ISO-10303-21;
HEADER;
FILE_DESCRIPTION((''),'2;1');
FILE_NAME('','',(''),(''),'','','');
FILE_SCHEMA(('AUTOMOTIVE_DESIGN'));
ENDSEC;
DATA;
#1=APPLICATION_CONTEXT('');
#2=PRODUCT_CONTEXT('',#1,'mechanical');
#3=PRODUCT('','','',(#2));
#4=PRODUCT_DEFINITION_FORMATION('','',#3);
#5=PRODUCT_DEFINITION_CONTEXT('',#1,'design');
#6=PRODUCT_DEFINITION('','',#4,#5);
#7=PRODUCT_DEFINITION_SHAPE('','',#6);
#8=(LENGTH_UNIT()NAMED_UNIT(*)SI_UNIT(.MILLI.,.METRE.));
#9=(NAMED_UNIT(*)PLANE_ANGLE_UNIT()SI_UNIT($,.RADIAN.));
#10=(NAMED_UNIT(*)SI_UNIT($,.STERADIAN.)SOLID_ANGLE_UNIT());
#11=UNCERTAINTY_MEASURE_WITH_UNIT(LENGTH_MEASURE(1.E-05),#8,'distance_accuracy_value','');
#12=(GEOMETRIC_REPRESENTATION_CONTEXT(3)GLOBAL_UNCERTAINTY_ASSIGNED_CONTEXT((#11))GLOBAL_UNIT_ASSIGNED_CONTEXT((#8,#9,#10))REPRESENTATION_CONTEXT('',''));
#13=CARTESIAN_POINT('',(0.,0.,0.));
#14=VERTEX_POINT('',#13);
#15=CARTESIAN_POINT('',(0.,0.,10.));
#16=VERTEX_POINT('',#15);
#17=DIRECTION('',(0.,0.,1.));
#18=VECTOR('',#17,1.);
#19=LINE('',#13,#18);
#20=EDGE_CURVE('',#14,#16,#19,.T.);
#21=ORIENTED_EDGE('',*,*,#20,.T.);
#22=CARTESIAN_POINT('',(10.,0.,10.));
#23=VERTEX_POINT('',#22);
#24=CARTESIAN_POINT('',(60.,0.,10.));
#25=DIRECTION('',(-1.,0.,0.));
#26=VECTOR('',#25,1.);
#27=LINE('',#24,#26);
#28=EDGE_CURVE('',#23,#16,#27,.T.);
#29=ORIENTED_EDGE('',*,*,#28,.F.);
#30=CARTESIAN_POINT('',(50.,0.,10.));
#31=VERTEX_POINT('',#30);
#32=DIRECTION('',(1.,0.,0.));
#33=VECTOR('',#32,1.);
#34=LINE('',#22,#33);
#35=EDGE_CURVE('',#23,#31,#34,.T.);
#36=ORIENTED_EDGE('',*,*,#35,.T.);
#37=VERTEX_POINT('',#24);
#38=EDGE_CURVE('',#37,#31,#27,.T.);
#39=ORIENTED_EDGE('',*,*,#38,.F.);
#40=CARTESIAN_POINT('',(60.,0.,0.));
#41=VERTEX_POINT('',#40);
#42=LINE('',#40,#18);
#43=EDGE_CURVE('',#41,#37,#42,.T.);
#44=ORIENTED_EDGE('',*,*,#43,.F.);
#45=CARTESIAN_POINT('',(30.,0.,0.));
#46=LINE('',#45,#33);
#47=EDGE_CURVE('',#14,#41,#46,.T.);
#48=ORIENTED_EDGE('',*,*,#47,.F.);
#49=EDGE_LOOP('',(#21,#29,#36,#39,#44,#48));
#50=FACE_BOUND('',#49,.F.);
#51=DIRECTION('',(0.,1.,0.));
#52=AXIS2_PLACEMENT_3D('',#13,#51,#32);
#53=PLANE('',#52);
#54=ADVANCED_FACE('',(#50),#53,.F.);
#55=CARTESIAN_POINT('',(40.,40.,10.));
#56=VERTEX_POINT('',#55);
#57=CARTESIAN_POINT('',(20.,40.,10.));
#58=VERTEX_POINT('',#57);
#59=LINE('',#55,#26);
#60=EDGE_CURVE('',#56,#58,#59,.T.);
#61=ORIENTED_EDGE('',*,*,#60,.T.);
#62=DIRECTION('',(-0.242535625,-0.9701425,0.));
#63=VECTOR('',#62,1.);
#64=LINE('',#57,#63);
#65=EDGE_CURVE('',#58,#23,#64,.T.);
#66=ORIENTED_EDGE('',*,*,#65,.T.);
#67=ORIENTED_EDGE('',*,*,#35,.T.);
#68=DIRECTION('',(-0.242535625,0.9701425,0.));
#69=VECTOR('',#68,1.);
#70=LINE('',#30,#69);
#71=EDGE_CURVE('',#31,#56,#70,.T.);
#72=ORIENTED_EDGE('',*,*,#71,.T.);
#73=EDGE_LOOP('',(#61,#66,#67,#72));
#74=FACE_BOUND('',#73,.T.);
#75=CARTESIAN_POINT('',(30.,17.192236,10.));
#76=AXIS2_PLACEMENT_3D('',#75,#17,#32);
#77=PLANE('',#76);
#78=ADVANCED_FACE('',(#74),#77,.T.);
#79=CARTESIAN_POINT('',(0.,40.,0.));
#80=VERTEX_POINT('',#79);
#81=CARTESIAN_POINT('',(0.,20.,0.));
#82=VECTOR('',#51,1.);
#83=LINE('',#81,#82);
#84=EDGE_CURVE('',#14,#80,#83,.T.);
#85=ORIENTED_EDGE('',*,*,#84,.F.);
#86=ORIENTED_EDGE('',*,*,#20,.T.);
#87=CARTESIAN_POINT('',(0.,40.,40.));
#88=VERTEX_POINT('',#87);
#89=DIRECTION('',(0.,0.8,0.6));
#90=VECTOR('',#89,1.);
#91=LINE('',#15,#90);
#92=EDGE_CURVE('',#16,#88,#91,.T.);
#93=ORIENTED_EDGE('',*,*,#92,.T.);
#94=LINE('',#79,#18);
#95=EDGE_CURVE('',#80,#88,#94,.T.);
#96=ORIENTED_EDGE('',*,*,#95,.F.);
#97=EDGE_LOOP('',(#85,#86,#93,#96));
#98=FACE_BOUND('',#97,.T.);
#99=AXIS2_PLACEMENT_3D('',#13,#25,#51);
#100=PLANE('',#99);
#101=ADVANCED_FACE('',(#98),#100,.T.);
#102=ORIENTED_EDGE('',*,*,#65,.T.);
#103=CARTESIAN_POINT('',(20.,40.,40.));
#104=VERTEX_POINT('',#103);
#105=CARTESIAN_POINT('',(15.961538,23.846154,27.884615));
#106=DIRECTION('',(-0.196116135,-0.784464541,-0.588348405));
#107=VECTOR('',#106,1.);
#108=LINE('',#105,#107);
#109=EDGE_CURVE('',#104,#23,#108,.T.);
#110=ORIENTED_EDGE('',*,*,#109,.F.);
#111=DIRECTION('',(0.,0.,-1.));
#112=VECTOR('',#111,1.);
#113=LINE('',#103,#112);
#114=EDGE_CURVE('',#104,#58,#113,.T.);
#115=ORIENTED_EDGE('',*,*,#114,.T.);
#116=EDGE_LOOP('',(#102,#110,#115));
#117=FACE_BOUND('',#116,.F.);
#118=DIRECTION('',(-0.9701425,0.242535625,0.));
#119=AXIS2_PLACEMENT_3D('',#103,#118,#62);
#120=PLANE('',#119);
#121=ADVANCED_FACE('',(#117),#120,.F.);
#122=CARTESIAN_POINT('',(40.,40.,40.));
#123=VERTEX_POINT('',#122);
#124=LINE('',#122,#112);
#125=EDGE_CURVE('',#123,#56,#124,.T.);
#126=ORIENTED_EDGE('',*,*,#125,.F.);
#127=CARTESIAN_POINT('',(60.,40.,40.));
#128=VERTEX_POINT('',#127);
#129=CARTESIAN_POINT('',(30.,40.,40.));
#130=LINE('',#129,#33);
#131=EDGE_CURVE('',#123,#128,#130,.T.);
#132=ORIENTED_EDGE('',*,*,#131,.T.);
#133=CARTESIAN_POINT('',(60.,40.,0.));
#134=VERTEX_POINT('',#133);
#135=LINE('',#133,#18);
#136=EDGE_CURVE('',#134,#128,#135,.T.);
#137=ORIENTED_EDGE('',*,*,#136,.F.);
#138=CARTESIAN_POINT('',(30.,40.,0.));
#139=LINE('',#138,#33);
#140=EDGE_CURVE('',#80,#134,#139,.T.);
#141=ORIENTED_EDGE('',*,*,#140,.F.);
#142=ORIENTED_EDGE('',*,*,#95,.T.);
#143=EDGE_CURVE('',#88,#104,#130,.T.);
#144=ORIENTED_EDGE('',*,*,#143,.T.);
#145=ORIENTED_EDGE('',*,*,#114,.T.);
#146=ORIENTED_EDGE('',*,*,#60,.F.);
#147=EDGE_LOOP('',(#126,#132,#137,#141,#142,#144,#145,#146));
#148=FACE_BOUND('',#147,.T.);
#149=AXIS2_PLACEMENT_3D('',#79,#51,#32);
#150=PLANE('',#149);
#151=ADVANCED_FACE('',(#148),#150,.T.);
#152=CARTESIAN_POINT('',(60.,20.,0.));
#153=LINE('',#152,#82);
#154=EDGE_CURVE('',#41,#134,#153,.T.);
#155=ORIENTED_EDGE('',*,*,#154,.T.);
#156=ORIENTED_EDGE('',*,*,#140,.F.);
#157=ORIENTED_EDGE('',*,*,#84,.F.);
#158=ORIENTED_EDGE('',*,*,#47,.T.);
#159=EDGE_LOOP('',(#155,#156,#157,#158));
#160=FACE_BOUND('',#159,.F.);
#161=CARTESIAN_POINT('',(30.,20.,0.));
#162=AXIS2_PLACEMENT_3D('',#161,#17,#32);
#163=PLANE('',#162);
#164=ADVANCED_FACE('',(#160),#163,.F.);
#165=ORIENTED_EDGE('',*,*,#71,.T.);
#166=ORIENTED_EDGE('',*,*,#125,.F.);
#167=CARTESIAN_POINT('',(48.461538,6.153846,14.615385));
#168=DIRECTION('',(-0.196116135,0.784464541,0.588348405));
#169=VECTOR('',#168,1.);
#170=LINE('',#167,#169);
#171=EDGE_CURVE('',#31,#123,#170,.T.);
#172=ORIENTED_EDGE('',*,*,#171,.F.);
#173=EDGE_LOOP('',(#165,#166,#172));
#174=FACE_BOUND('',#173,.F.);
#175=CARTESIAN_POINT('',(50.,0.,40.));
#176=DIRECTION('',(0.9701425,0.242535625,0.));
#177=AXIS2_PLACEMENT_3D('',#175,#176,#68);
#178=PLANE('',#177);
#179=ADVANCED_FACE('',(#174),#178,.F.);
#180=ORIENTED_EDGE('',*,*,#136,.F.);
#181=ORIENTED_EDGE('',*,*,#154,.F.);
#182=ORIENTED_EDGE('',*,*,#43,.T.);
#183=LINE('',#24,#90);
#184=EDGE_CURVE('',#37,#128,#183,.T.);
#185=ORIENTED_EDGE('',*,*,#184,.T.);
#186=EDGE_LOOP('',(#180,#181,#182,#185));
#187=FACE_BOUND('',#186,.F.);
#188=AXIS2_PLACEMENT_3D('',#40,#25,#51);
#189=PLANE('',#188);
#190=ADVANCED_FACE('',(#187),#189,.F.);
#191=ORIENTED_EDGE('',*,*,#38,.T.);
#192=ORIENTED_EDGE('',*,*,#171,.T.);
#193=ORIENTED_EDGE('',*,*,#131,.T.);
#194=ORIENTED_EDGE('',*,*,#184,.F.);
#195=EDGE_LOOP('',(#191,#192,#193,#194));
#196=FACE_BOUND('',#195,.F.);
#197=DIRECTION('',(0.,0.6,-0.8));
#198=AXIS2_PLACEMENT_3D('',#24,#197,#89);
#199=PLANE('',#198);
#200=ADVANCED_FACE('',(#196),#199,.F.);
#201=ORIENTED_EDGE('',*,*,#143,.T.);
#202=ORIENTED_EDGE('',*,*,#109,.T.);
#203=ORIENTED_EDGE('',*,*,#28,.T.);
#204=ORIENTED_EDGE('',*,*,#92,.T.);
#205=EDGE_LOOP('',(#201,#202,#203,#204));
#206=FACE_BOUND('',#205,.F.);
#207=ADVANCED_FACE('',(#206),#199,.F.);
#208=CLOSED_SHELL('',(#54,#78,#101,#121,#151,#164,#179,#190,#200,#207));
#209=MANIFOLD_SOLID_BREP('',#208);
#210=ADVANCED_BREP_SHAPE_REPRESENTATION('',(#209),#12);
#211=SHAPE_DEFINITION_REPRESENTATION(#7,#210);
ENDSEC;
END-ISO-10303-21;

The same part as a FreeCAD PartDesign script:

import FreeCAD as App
import Part
import Sketcher

V = App.Vector


def add_polygon(sketch, points):
    """Adds a closed chain of lines whose ends are joined by coincident constraints."""
    first, n = sketch.GeometryCount, len(points)
    for a, b in zip(points, points[1:] + points[:1]):
        sketch.addGeometry(Part.LineSegment(App.Vector(*a, 0), App.Vector(*b, 0)), False)
    for i in range(n):
        sketch.addConstraint(Sketcher.Constraint("Coincident", first + i, 2, first + (i + 1) % n, 1))

doc = App.newDocument("Part")
body = doc.addObject("PartDesign::Body", "Body")

# Sketch on XY plane
sketch1 = body.newObject("Sketcher::SketchObject", "Sketch")
sketch1.AttachmentSupport = (doc.getObject("XY_Plane"), [""])
sketch1.MapMode = "FlatFace"
add_polygon(sketch1, [(0, 40), (0, 0), (60, 0), (60, 40)])  # lines 0-3
sketch1.addConstraint(Sketcher.Constraint("Vertical", 0))
sketch1.addConstraint(Sketcher.Constraint("Horizontal", 1))
sketch1.addConstraint(Sketcher.Constraint("Vertical", 2))
sketch1.addConstraint(Sketcher.Constraint("Horizontal", 3))
sketch1.addConstraint(Sketcher.Constraint("Coincident", 0, 2, -1, 1))
sketch1.addConstraint(Sketcher.Constraint("DistanceX", 1, 1, 1, 2, 60.0))
sketch1.addConstraint(Sketcher.Constraint("DistanceY", 0, 2, 0, 1, 40.0))
pad1 = body.newObject("PartDesign::Pad", "Pad")
pad1.Profile = sketch1
pad1.Length = 40

# Sketch on XY plane
sketch2 = body.newObject("Sketcher::SketchObject", "Sketch001")
sketch2.AttachmentSupport = (doc.getObject("XY_Plane"), [""])
sketch2.MapMode = "FlatFace"
sketch2.AttachmentOffset = App.Placement(V(0, 0, 40), App.Rotation())
add_polygon(sketch2, [(20, 40), (10, 0), (50, 0), (40, 40)])  # lines 0-3
sketch2.addConstraint(Sketcher.Constraint("Horizontal", 1))
sketch2.addConstraint(Sketcher.Constraint("Horizontal", 3))
sketch2.addConstraint(Sketcher.Constraint("PointOnObject", 0, 2, -1))
sketch2.addConstraint(Sketcher.Constraint("Equal", 0, 2))
sketch2.addConstraint(Sketcher.Constraint("DistanceX", 1, 1, 1, 2, 40.0))
sketch2.addConstraint(Sketcher.Constraint("DistanceX", 3, 2, 3, 1, 20.0))
sketch2.addConstraint(Sketcher.Constraint("DistanceX", -1, 1, 0, 2, 10.0))
sketch2.addConstraint(Sketcher.Constraint("DistanceY", -1, 1, 2, 2, 40.0))
pocket1 = body.newObject("PartDesign::Pocket", "Pocket")
pocket1.Profile = sketch2
pocket1.Length = 30

# Sketch on YZ plane
sketch3 = body.newObject("Sketcher::SketchObject", "Sketch002")
sketch3.AttachmentSupport = (doc.getObject("YZ_Plane"), [""])
sketch3.MapMode = "FlatFace"
sketch3.AttachmentOffset = App.Placement(V(0, 0, 60), App.Rotation())
add_polygon(sketch3, [(0, 10), (40, 40), (0, 40)])  # lines 0-2
sketch3.addConstraint(Sketcher.Constraint("Horizontal", 1))
sketch3.addConstraint(Sketcher.Constraint("Vertical", 2))
sketch3.addConstraint(Sketcher.Constraint("PointOnObject", 1, 2, -2))
sketch3.addConstraint(Sketcher.Constraint("DistanceX", 1, 2, 1, 1, 40.0))
sketch3.addConstraint(Sketcher.Constraint("DistanceY", 2, 2, 2, 1, 30.0))
sketch3.addConstraint(Sketcher.Constraint("DistanceY", -1, 1, 0, 2, 40.0))
pocket2 = body.newObject("PartDesign::Pocket", "Pocket001")
pocket2.Profile = sketch3
pocket2.Length = 60

doc.recompute()
